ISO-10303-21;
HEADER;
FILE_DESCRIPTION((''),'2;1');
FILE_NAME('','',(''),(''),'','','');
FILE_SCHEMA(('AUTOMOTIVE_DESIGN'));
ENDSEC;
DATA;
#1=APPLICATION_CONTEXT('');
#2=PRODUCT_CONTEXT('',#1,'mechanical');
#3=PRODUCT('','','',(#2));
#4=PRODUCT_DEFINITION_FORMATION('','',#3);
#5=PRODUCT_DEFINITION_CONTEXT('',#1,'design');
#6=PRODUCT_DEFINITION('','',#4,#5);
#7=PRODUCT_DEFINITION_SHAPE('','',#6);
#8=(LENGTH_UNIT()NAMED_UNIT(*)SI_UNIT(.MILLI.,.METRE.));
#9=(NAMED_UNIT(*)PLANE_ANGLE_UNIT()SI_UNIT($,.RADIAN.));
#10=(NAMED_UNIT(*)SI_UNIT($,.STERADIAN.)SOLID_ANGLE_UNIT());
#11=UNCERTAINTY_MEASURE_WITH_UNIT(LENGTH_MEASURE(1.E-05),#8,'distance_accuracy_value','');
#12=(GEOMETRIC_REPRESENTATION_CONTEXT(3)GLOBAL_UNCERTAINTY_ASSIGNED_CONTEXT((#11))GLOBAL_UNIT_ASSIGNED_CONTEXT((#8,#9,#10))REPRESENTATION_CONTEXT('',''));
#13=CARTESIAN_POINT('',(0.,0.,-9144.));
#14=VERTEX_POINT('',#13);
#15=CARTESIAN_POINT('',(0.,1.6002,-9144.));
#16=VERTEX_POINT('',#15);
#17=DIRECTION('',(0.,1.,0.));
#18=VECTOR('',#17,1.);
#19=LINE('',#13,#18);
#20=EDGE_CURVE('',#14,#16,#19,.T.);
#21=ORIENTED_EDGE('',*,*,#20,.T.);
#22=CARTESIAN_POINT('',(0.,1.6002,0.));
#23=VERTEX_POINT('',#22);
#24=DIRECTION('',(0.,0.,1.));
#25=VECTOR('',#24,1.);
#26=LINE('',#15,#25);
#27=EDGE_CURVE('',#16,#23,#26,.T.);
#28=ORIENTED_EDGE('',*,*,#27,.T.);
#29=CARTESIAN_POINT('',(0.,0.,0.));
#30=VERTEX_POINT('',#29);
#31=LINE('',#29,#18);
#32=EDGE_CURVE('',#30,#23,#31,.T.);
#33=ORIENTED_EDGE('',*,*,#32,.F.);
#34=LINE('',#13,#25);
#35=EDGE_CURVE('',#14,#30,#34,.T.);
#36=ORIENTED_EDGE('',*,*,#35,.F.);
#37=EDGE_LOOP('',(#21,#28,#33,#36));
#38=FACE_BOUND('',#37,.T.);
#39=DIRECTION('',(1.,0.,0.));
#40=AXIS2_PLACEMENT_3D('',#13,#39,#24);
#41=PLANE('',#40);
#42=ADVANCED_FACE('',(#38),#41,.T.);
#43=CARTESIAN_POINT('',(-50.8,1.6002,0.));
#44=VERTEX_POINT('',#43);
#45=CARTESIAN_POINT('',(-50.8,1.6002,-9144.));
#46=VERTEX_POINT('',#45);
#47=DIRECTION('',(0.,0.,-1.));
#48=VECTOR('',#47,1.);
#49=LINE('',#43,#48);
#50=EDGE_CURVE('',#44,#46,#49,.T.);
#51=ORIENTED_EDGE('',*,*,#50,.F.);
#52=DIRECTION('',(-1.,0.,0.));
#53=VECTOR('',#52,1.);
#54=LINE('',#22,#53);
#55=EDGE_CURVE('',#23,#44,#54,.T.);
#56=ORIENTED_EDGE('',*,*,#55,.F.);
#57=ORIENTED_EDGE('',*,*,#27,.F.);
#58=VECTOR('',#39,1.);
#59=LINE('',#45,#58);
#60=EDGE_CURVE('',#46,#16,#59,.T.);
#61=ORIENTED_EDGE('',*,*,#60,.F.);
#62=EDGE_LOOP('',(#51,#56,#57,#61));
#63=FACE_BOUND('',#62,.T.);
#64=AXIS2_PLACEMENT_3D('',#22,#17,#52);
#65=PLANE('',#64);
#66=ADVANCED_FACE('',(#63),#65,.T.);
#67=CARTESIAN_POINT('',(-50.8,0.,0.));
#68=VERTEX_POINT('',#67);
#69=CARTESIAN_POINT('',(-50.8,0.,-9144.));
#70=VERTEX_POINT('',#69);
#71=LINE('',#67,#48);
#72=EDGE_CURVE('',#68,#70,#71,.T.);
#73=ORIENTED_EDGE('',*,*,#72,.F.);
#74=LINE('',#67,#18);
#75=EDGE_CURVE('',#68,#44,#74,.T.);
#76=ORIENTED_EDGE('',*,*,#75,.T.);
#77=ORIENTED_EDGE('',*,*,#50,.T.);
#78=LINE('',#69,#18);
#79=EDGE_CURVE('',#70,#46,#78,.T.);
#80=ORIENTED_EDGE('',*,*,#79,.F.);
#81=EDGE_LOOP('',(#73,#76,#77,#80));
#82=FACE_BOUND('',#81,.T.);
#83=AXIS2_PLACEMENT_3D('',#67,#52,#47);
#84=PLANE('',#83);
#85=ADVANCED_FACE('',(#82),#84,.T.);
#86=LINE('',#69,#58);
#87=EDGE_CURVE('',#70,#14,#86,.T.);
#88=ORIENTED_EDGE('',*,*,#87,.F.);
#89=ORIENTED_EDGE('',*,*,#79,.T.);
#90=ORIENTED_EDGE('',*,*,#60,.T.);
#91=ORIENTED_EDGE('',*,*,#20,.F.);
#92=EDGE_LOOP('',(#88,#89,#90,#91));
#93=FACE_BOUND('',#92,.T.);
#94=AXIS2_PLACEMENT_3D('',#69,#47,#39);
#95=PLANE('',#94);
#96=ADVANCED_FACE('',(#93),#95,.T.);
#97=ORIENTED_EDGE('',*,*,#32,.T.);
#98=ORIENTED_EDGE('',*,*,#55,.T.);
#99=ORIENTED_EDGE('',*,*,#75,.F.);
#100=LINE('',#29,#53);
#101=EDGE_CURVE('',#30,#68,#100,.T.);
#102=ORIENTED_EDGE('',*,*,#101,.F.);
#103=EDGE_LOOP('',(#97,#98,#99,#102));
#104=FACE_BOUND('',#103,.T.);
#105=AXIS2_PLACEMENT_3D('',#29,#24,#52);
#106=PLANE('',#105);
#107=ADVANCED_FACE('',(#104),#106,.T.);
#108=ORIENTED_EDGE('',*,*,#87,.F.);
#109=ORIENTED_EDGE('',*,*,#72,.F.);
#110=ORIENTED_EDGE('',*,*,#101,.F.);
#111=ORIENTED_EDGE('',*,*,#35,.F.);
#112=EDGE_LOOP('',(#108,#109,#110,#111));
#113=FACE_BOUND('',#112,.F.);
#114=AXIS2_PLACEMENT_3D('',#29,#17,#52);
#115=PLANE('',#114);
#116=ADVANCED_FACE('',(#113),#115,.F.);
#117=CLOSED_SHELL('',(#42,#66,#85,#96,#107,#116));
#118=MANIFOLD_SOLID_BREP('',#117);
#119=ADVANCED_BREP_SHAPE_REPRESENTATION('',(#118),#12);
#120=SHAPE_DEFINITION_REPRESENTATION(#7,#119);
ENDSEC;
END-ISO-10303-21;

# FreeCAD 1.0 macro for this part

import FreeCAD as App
import Part
import Sketcher

V = App.Vector
Q = App.Units.Quantity


def add_polygon(sketch, points):
    """Adds a closed chain of lines whose ends are joined by coincident constraints."""
    first, n = sketch.GeometryCount, len(points)
    for a, b in zip(points, points[1:] + points[:1]):
        sketch.addGeometry(Part.LineSegment(App.Vector(*a, 0), App.Vector(*b, 0)), False)
    for i in range(n):
        sketch.addConstraint(Sketcher.Constraint("Coincident", first + i, 2, first + (i + 1) % n, 1))

doc = App.newDocument("Part")
body = doc.addObject("PartDesign::Body", "Body")

sketch1 = body.newObject("Sketcher::SketchObject", "Sketch")
sketch1.AttachmentSupport = (doc.getObject("XZ_Plane"), [""])
sketch1.MapMode = "FlatFace"
add_polygon(sketch1, [(-51, 0), (0, 0), (0, -9144), (-51, -9144)])
sketch1.addConstraint(Sketcher.Constraint("Horizontal", 0))
sketch1.addConstraint(Sketcher.Constraint("Vertical", 1))
sketch1.addConstraint(Sketcher.Constraint("Horizontal", 2))
sketch1.addConstraint(Sketcher.Constraint("Vertical", 3))
sketch1.addConstraint(Sketcher.Constraint("Coincident", 0, 2, -1, 1))
sketch1.addConstraint(Sketcher.Constraint("DistanceX", 0, 1, 0, 2, Q("2 in")))
sketch1.addConstraint(Sketcher.Constraint("DistanceY", 1, 2, 1, 1, Q("360 in")))
pad1 = body.newObject("PartDesign::Pad", "Pad")
pad1.Profile = sketch1
pad1.Length = Q("0.063 in")
pad1.Reversed = True

doc.recompute()
